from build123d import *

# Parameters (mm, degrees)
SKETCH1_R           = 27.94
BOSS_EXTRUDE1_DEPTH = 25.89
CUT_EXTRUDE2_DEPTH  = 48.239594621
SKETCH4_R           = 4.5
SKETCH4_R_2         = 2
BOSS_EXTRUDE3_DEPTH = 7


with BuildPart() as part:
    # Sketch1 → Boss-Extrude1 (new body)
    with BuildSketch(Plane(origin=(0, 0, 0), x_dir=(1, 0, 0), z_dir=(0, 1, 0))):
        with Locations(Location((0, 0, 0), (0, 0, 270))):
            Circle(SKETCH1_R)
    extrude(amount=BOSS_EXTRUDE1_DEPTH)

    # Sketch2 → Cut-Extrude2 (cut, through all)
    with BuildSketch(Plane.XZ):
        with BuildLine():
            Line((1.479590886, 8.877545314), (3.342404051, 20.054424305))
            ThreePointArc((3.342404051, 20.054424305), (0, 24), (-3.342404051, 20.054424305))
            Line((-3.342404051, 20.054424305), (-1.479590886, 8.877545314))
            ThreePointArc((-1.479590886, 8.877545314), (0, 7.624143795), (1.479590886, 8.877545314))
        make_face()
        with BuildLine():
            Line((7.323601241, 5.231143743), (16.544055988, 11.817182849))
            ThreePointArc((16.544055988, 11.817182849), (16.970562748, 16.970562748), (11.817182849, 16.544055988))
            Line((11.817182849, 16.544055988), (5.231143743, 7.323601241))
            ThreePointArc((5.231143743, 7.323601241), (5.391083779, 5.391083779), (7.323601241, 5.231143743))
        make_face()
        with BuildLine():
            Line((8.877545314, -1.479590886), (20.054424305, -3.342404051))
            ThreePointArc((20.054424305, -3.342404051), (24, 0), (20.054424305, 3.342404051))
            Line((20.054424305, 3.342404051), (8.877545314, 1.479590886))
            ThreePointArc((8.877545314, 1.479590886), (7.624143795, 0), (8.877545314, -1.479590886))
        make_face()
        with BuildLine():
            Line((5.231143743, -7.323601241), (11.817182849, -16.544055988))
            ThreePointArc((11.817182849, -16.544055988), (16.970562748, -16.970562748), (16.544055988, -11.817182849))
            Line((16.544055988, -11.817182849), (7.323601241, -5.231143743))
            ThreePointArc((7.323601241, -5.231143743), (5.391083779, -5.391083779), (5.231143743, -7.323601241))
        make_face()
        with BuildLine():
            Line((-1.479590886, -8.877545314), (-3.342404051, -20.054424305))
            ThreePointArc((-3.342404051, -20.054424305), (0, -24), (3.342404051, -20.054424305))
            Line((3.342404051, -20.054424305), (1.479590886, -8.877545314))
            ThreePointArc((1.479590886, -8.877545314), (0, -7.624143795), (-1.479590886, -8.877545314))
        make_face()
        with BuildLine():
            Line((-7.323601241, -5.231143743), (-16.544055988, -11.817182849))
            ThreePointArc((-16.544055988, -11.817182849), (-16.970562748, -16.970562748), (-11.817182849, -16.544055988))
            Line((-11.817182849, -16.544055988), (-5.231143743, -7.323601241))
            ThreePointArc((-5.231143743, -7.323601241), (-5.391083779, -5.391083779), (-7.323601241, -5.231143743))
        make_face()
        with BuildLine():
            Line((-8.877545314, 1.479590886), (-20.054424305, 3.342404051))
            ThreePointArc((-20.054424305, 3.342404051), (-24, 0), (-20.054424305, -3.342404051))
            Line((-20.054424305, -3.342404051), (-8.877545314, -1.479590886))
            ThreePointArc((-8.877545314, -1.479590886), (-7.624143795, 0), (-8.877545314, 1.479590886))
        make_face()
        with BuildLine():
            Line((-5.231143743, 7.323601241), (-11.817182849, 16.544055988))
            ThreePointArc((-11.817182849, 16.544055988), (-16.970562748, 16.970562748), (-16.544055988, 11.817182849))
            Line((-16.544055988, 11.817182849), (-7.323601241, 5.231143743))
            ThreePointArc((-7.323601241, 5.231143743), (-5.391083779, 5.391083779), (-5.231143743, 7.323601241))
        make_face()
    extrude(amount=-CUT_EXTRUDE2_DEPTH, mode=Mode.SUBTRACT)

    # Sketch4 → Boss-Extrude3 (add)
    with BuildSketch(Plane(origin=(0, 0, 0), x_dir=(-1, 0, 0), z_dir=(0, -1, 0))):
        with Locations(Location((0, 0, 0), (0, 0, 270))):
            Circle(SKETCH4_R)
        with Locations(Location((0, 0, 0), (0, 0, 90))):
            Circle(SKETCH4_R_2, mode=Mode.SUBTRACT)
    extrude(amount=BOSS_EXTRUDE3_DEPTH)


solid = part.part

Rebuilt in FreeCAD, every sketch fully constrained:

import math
import FreeCAD as App
import Part
import Sketcher

V = App.Vector

doc = App.newDocument("Part")
params = doc.addObject("Spreadsheet::Sheet", "Params")
for row, (alias, value) in enumerate([
    ("sketch1_diameter", "55.88 mm"),
    ("pad1_length", "25.89 mm"),
    ("sketch2_radius", "1.5 mm"),
    ("sketch3_diameter", "9 mm"),
    ("sketch3_diameter2", "4 mm"),
    ("pad2_length", "7 mm"),
], start=1):
    params.set(f"A{row}", alias)
    params.set(f"B{row}", "=" + value)
    params.setAlias(f"B{row}", alias)

body = doc.addObject("PartDesign::Body", "Body")

sketch1 = body.newObject("Sketcher::SketchObject", "Sketch")
sketch1.AttachmentSupport = (doc.getObject("XZ_Plane"), [""])
sketch1.MapMode = "FlatFace"
sketch1.addGeometry(Part.Circle(V(0, 0, 0), V(0, 0, 1), 27.94), False)
sketch1.addConstraint([
    Sketcher.Constraint("Coincident", 0, 3, -1, 1),
    Sketcher.Constraint("Diameter", 0, 55.88),
])
sketch1.setExpression("Constraints[1]", "Params.sketch1_diameter")
pad1 = body.newObject("PartDesign::Pad", "Pad")
pad1.Profile = sketch1
pad1.setExpression("Length", "Params.pad1_length")
pad1.Reversed = True

sketch2 = body.newObject("Sketcher::SketchObject", "Sketch001")
sketch2.AttachmentSupport = (doc.getObject("XZ_Plane"), [""])
sketch2.MapMode = "FlatFace"
sketch2.addGeometry([
    Part.LineSegment(V(1.479591, 8.877545, 0), V(3.342404, 20.054424, 0)),
    Part.ArcOfCircle(Part.Circle(V(0, 20.611492, 0), V(0, 0, 1), 3.388508), math.radians(-9.462322), math.radians(189.462322)),
    Part.LineSegment(V(-3.342404, 20.054424, 0), V(-1.479591, 8.877545, 0)),
    Part.ArcOfCircle(Part.Circle(V(0, 9.124144, 0), V(0, 0, 1), 1.5), math.radians(-170.537678), math.radians(-9.462322)),
    Part.LineSegment(V(7.323601, 5.231144, 0), V(16.544056, 11.817183, 0)),
    Part.ArcOfCircle(Part.Circle(V(14.574526, 14.574526, 0), V(0, 0, 1), 3.388508), math.radians(-54.462322), math.radians(144.462322)),
    Part.LineSegment(V(11.817183, 16.544056, 0), V(5.231144, 7.323601, 0)),
    Part.ArcOfCircle(Part.Circle(V(6.451744, 6.451744, 0), V(0, 0, 1), 1.5), math.radians(144.462322), math.radians(305.537678)),
    Part.LineSegment(V(8.877545, -1.479591, 0), V(20.054424, -3.342404, 0)),
    Part.ArcOfCircle(Part.Circle(V(20.611492, 0, 0), V(0, 0, 1), 3.388508), math.radians(-99.462322), math.radians(99.462322)),
    Part.LineSegment(V(20.054424, 3.342404, 0), V(8.877545, 1.479591, 0)),
    Part.ArcOfCircle(Part.Circle(V(9.124144, 0, 0), V(0, 0, 1), 1.5), math.radians(99.462322), math.radians(260.537678)),
    Part.LineSegment(V(5.231144, -7.323601, 0), V(11.817183, -16.544056, 0)),
    Part.ArcOfCircle(Part.Circle(V(14.574526, -14.574526, 0), V(0, 0, 1), 3.388508), math.radians(-144.462322), math.radians(54.462322)),
    Part.LineSegment(V(16.544056, -11.817183, 0), V(7.323601, -5.231144, 0)),
    Part.ArcOfCircle(Part.Circle(V(6.451744, -6.451744, 0), V(0, 0, 1), 1.5), math.radians(54.462322), math.radians(215.537678)),
    Part.LineSegment(V(-1.479591, -8.877545, 0), V(-3.342404, -20.054424, 0)),
    Part.ArcOfCircle(Part.Circle(V(0, -20.611492, 0), V(0, 0, 1), 3.388508), math.radians(170.537678), math.radians(369.462322)),
    Part.LineSegment(V(3.342404, -20.054424, 0), V(1.479591, -8.877545, 0)),
    Part.ArcOfCircle(Part.Circle(V(0, -9.124144, 0), V(0, 0, 1), 1.5), math.radians(9.462322), math.radians(170.537678)),
    Part.LineSegment(V(-7.323601, -5.231144, 0), V(-16.544056, -11.817183, 0)),
    Part.ArcOfCircle(Part.Circle(V(-14.574526, -14.574526, 0), V(0, 0, 1), 3.388508), math.radians(125.537678), math.radians(324.462322)),
    Part.LineSegment(V(-11.817183, -16.544056, 0), V(-5.231144, -7.323601, 0)),
    Part.ArcOfCircle(Part.Circle(V(-6.451744, -6.451744, 0), V(0, 0, 1), 1.5), math.radians(-35.537678), math.radians(125.537678)),
    Part.LineSegment(V(-8.877545, 1.479591, 0), V(-20.054424, 3.342404, 0)),
    Part.ArcOfCircle(Part.Circle(V(-20.611492, 0, 0), V(0, 0, 1), 3.388508), math.radians(80.537678), math.radians(279.462322)),
    Part.LineSegment(V(-20.054424, -3.342404, 0), V(-8.877545, -1.479591, 0)),
    Part.ArcOfCircle(Part.Circle(V(-9.124144, 0, 0), V(0, 0, 1), 1.5), math.radians(-80.537678), math.radians(80.537678)),
    Part.LineSegment(V(-5.231144, 7.323601, 0), V(-11.817183, 16.544056, 0)),
    Part.ArcOfCircle(Part.Circle(V(-14.574526, 14.574526, 0), V(0, 0, 1), 3.388508), math.radians(35.537678), math.radians(234.462322)),
    Part.LineSegment(V(-16.544056, 11.817183, 0), V(-7.323601, 5.231144, 0)),
    Part.ArcOfCircle(Part.Circle(V(-6.451744, 6.451744, 0), V(0, 0, 1), 1.5), math.radians(-125.537678), math.radians(35.537678)),
], False)
sketch2.addConstraint([
    Sketcher.Constraint("Tangent", 0, 2, 1, 1),
    Sketcher.Constraint("Tangent", 1, 2, 2, 1),
    Sketcher.Constraint("Tangent", 2, 2, 3, 1),
    Sketcher.Constraint("Tangent", 3, 2, 0, 1),
    Sketcher.Constraint("Tangent", 4, 2, 5, 1),
    Sketcher.Constraint("Tangent", 5, 2, 6, 1),
    Sketcher.Constraint("Tangent", 6, 2, 7, 1),
    Sketcher.Constraint("Tangent", 7, 2, 4, 1),
    Sketcher.Constraint("Tangent", 8, 2, 9, 1),
    Sketcher.Constraint("Tangent", 9, 2, 10, 1),
    Sketcher.Constraint("Tangent", 10, 2, 11, 1),
    Sketcher.Constraint("Tangent", 11, 2, 8, 1),
    Sketcher.Constraint("Tangent", 12, 2, 13, 1),
    Sketcher.Constraint("Tangent", 13, 2, 14, 1),
    Sketcher.Constraint("Tangent", 14, 2, 15, 1),
    Sketcher.Constraint("Tangent", 15, 2, 12, 1),
    Sketcher.Constraint("Tangent", 16, 2, 17, 1),
    Sketcher.Constraint("Tangent", 17, 2, 18, 1),
    Sketcher.Constraint("Tangent", 18, 2, 19, 1),
    Sketcher.Constraint("Tangent", 19, 2, 16, 1),
    Sketcher.Constraint("Tangent", 20, 2, 21, 1),
    Sketcher.Constraint("Tangent", 21, 2, 22, 1),
    Sketcher.Constraint("Tangent", 22, 2, 23, 1),
    Sketcher.Constraint("Tangent", 23, 2, 20, 1),
    Sketcher.Constraint("Tangent", 24, 2, 25, 1),
    Sketcher.Constraint("Tangent", 25, 2, 26, 1),
    Sketcher.Constraint("Tangent", 26, 2, 27, 1),
    Sketcher.Constraint("Tangent", 27, 2, 24, 1),
    Sketcher.Constraint("Tangent", 28, 2, 29, 1),
    Sketcher.Constraint("Tangent", 29, 2, 30, 1),
    Sketcher.Constraint("Tangent", 30, 2, 31, 1),
    Sketcher.Constraint("Tangent", 31, 2, 28, 1),
    Sketcher.Constraint("Equal", 1, 5),
    Sketcher.Constraint("Equal", 3, 7),
    Sketcher.Constraint("Equal", 5, 9),
    Sketcher.Constraint("Equal", 7, 11),
    Sketcher.Constraint("Equal", 9, 13),
    Sketcher.Constraint("Equal", 11, 15),
    Sketcher.Constraint("Equal", 13, 17),
    Sketcher.Constraint("Equal", 15, 19),
    Sketcher.Constraint("Equal", 17, 21),
    Sketcher.Constraint("Equal", 19, 23),
    Sketcher.Constraint("Equal", 21, 25),
    Sketcher.Constraint("Equal", 23, 27),
    Sketcher.Constraint("Equal", 25, 29),
    Sketcher.Constraint("Equal", 27, 31),
    Sketcher.Constraint("Symmetric", 1, 3, 17, 3, -1, 1),
    Sketcher.Constraint("Symmetric", 3, 3, 19, 3, -1, 1),
    Sketcher.Constraint("Symmetric", 5, 3, 21, 3, -1, 1),
    Sketcher.Constraint("Symmetric", 7, 3, 23, 3, -1, 1),
    Sketcher.Constraint("Symmetric", 9, 3, 25, 3, -1, 1),
    Sketcher.Constraint("Symmetric", 11, 3, 27, 3, -1, 1),
    Sketcher.Constraint("Symmetric", 13, 3, 29, 3, -1, 1),
    Sketcher.Constraint("Symmetric", 15, 3, 31, 3, -1, 1),
    Sketcher.Constraint("Symmetric", 13, 3, 21, 3, -2),
    Sketcher.Constraint("Symmetric", 15, 3, 23, 3, -2),
    Sketcher.Constraint("Symmetric", 0, 2, 1, 2, -2),
    Sketcher.Constraint("Symmetric", 9, 2, 24, 2, -2),
    Sketcher.Constraint("Perpendicular", 0, 8),
    Sketcher.Constraint("Perpendicular", 4, 12),
    Sketcher.Constraint("Equal", 2, 4),
    Sketcher.Constraint("Radius", 3, 1.5),
    Sketcher.Constraint("Radius", 1, 3.388508),
    Sketcher.Constraint("DistanceX", 6, 2, 11, 3, 3.893),
    Sketcher.Constraint("DistanceY", 7, 2, 3, 3, 3.893),
    Sketcher.Constraint("DistanceY", -1, 1, 6, 2, 7.323601),
    Sketcher.Constraint("DistanceX", -1, 1, 7, 2, 7.323601),
    Sketcher.Constraint("DistanceY", 5, 3, 0, 2, 5.479899),
])
sketch2.setExpression("Constraints[61]", "Params.sketch2_radius")
pocket1 = body.newObject("PartDesign::Pocket", "Pocket")
pocket1.Profile = sketch2
pocket1.Type = "ThroughAll"

sketch3 = body.newObject("Sketcher::SketchObject", "Sketch002")
sketch3.AttachmentSupport = (doc.getObject("XZ_Plane"), [""])
sketch3.MapMode = "FlatFace"
sketch3.addGeometry([
    Part.Circle(V(0, 0, 0), V(0, 0, 1), 4.5),
    Part.Circle(V(0, 0, 0), V(0, 0, 1), 2),
], False)
sketch3.addConstraint([
    Sketcher.Constraint("Coincident", 0, 3, -1, 1),
    Sketcher.Constraint("Coincident", 1, 3, -1, 1),
    Sketcher.Constraint("Diameter", 0, 9.0),
    Sketcher.Constraint("Diameter", 1, 4.0),
])
sketch3.setExpression("Constraints[2]", "Params.sketch3_diameter")
sketch3.setExpression("Constraints[3]", "Params.sketch3_diameter2")
pad2 = body.newObject("PartDesign::Pad", "Pad001")
pad2.Profile = sketch3
pad2.setExpression("Length", "Params.pad2_length")

doc.recompute()
